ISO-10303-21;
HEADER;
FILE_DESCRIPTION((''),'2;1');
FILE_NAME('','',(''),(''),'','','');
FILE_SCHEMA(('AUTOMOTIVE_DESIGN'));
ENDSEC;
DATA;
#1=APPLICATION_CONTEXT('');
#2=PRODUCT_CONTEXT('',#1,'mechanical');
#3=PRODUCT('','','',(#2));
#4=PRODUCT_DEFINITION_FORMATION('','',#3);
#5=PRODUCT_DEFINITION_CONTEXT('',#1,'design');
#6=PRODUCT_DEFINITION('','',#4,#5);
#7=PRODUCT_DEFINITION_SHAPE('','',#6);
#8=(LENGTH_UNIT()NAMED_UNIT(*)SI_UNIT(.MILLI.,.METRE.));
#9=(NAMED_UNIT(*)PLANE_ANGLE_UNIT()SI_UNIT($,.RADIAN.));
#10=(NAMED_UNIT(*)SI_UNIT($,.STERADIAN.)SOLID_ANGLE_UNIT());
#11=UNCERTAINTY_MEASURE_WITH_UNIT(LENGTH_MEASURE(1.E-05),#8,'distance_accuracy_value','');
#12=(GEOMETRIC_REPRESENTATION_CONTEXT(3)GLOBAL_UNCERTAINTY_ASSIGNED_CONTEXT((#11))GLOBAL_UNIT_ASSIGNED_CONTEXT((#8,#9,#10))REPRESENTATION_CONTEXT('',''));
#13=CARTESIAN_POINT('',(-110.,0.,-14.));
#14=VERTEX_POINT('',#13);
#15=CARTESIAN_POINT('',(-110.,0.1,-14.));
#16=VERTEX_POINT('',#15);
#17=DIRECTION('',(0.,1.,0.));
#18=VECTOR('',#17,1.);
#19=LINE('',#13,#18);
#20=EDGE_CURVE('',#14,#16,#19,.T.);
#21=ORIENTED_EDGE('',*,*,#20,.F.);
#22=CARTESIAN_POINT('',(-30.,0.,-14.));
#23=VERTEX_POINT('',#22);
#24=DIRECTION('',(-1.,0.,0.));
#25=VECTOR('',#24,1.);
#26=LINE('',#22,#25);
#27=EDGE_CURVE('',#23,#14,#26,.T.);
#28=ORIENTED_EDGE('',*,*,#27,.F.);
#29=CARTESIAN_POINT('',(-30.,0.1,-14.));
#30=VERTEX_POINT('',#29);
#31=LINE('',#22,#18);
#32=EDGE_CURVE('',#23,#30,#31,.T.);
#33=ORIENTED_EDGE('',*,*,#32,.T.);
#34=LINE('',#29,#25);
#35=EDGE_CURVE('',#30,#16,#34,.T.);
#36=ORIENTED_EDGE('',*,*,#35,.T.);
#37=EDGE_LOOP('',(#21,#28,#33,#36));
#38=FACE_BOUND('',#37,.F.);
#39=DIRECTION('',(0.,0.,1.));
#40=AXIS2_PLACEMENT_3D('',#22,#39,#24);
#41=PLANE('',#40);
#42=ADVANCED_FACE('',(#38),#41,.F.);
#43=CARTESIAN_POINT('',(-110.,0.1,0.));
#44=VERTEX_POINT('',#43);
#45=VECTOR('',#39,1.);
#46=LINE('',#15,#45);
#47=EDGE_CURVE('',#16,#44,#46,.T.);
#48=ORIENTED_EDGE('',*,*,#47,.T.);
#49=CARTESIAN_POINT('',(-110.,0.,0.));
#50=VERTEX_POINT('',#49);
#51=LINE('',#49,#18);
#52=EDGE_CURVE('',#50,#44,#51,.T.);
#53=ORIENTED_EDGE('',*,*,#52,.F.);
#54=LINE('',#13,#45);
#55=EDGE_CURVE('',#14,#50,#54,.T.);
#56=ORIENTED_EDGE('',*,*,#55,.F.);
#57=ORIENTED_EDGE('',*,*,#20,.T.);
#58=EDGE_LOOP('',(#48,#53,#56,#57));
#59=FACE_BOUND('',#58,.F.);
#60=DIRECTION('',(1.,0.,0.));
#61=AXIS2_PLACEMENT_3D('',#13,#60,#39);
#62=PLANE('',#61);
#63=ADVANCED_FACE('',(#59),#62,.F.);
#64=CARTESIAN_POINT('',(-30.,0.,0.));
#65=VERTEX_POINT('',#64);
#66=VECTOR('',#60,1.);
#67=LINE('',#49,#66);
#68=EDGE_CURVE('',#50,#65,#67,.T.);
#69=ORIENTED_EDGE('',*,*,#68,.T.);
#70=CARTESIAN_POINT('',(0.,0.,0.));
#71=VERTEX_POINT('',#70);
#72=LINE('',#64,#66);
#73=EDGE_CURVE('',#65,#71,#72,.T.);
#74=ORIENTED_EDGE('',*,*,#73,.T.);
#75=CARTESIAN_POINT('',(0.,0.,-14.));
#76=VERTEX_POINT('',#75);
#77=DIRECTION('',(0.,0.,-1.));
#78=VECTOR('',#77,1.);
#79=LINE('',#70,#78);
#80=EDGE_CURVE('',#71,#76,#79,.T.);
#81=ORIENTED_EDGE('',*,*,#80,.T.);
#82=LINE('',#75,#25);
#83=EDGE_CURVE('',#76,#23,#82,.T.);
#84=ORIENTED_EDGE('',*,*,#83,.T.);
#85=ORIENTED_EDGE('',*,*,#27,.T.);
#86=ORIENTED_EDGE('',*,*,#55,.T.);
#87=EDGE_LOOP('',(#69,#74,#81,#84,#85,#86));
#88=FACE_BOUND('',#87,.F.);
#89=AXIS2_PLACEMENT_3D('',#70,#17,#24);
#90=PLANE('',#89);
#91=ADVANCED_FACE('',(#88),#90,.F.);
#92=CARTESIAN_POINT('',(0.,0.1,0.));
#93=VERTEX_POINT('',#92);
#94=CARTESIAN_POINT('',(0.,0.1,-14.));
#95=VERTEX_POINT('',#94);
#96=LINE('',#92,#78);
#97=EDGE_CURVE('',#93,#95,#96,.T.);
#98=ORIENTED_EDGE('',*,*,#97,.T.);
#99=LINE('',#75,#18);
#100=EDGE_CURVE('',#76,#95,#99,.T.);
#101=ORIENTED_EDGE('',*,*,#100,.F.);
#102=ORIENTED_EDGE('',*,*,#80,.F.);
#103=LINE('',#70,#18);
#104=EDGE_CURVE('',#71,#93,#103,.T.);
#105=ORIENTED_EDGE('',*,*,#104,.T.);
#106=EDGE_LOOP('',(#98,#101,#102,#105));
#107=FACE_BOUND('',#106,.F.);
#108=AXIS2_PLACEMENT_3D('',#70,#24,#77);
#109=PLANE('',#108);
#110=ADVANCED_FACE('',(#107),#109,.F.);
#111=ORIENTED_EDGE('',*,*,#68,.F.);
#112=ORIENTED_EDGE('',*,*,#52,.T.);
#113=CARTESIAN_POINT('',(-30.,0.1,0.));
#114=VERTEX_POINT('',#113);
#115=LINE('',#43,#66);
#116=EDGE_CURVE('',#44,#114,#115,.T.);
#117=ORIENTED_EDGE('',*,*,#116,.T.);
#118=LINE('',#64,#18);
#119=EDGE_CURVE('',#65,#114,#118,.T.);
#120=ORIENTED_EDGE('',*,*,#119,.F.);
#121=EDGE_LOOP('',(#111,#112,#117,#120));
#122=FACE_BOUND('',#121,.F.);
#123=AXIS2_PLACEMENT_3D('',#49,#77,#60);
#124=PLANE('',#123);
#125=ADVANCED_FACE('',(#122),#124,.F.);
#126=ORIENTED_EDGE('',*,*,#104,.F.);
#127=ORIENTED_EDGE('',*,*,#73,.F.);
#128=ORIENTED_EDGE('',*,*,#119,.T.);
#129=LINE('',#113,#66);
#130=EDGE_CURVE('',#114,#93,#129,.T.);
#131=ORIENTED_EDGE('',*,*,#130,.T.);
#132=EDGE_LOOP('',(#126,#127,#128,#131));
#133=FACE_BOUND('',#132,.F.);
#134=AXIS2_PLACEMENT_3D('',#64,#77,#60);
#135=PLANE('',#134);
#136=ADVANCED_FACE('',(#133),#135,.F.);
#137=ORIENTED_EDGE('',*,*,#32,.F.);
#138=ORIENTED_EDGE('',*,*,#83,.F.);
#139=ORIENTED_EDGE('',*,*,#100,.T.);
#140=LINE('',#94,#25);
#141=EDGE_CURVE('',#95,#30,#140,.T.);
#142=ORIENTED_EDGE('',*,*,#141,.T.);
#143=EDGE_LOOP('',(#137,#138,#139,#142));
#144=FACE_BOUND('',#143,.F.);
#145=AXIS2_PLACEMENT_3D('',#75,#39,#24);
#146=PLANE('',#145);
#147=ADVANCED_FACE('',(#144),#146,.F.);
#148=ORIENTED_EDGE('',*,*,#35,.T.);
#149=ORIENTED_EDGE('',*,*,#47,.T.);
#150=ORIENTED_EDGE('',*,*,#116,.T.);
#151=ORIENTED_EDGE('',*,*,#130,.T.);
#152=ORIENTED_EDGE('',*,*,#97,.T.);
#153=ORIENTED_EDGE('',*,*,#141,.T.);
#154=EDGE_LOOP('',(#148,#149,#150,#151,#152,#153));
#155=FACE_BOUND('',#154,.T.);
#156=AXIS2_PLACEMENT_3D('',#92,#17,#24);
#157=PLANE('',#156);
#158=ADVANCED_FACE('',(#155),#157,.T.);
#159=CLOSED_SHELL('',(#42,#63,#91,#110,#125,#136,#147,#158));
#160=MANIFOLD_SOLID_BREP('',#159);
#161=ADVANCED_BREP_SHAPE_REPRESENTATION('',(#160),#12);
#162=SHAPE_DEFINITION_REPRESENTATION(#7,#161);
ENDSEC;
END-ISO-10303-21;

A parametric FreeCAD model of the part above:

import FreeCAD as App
import Part
import Sketcher

doc = App.newDocument("Part")
body = doc.addObject("PartDesign::Body", "Body")

# Sketch on XZ plane
sketch1 = doc.addObject("Sketcher::SketchObject", "Sketch")
body.addObject(sketch1)
sketch1.AttachmentSupport = (doc.XZ_Plane, [""])
sketch1.MapMode = "FlatFace"
sketch1.addGeometry([
    Part.LineSegment(App.Vector(-110, 0, 0), App.Vector(0, 0, 0)),
    Part.LineSegment(App.Vector(0, 0, 0), App.Vector(0, -14, 0)),
    Part.LineSegment(App.Vector(0, -14, 0), App.Vector(-110, -14, 0)),
    Part.LineSegment(App.Vector(-110, -14, 0), App.Vector(-110, 0, 0)),
], False)
sketch1.addConstraint([
    Sketcher.Constraint("Coincident", 0, 2, 1, 1),
    Sketcher.Constraint("Coincident", 1, 2, 2, 1),
    Sketcher.Constraint("Coincident", 2, 2, 3, 1),
    Sketcher.Constraint("Coincident", 3, 2, 0, 1),
    Sketcher.Constraint("Horizontal", 0),
    Sketcher.Constraint("Vertical", 1),
    Sketcher.Constraint("Horizontal", 2),
    Sketcher.Constraint("Vertical", 3),
    Sketcher.Constraint("Coincident", 0, 2, -1, 1),
    Sketcher.Constraint("DistanceX", 0, 1, 0, 2, 110.0),
    Sketcher.Constraint("DistanceY", 1, 2, 1, 1, 14.0),
])
pad1 = doc.addObject("PartDesign::Pad", "Pad")
body.addObject(pad1)
pad1.Profile = sketch1
pad1.Length = 0.1
pad1.Reversed = True

doc.recompute()
